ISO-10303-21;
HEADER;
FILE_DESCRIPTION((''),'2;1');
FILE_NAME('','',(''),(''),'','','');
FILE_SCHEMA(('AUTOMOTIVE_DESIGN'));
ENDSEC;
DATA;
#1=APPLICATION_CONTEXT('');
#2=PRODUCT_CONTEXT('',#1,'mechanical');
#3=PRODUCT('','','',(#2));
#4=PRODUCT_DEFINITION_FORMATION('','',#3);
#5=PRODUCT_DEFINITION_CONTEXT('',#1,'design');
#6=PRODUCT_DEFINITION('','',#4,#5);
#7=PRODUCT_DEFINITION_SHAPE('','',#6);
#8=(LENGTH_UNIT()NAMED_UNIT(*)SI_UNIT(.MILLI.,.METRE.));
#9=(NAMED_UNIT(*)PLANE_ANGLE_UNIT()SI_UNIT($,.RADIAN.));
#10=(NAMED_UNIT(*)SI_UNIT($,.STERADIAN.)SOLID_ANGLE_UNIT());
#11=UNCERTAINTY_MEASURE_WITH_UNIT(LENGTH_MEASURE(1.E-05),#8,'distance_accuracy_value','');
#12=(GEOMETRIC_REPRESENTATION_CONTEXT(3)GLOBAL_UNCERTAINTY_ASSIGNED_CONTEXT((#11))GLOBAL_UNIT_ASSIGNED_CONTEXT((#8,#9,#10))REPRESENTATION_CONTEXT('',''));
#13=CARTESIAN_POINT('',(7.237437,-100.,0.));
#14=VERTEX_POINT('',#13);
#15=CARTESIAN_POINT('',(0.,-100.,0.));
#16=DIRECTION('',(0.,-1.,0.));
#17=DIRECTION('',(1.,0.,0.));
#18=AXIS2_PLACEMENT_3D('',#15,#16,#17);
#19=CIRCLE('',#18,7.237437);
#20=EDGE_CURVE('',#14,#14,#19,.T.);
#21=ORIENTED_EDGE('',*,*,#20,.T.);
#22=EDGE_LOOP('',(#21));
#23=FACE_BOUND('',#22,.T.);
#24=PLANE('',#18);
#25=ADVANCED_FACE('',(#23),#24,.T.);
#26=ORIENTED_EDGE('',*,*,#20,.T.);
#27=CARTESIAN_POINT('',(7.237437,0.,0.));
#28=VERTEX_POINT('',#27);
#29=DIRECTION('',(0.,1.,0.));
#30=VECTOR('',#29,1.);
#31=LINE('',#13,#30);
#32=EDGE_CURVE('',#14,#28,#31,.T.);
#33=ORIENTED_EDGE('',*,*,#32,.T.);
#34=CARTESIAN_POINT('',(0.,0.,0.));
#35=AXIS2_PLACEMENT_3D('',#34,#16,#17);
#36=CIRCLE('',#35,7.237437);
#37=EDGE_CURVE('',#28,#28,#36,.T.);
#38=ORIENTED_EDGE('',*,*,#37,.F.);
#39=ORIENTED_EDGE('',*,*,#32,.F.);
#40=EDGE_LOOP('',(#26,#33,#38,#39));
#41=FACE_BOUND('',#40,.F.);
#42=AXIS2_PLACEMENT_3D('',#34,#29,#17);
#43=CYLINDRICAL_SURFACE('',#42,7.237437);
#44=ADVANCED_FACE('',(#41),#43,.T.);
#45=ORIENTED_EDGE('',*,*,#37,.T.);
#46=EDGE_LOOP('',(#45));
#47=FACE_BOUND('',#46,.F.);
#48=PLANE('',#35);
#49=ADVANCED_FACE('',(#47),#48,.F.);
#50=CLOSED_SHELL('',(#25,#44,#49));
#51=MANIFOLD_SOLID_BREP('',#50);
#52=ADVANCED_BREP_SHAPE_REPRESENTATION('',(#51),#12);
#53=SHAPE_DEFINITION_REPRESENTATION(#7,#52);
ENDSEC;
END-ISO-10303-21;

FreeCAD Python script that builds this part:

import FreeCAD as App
import Part
import Sketcher

doc = App.newDocument("Part")
body = doc.addObject("PartDesign::Body", "Body")

# Sketch on XZ plane
sketch1 = body.newObject("Sketcher::SketchObject", "Sketch")
sketch1.AttachmentSupport = (doc.getObject("XZ_Plane"), [""])
sketch1.MapMode = "FlatFace"
sketch1.addGeometry(Part.Circle(App.Vector(0, 0, 0), App.Vector(0, 0, 1), 7.237437), False)
sketch1.addConstraint([
    Sketcher.Constraint("Coincident", 0, 3, -1, 1),
    Sketcher.Constraint("Diameter", 0, 14.474874),
])
pad1 = body.newObject("PartDesign::Pad", "Pad")
pad1.Profile = sketch1
pad1.Length = 100

# Sketch on XZ plane
sketch2 = body.newObject("Sketcher::SketchObject", "Sketch001")
sketch2.AttachmentSupport = (doc.getObject("XZ_Plane"), [""])
sketch2.MapMode = "FlatFace"
sketch2.addGeometry(Part.Circle(App.Vector(0, 0, 0), App.Vector(0, 0, 1), 7.237437), False)
sketch2.addConstraint([
    Sketcher.Constraint("Coincident", 0, 3, -1, 1),
    Sketcher.Constraint("Diameter", 0, 14.474874),
])
pad2 = body.newObject("PartDesign::Pad", "Pad001")
pad2.Profile = sketch2
pad2.Length = 25.4

doc.recompute()
